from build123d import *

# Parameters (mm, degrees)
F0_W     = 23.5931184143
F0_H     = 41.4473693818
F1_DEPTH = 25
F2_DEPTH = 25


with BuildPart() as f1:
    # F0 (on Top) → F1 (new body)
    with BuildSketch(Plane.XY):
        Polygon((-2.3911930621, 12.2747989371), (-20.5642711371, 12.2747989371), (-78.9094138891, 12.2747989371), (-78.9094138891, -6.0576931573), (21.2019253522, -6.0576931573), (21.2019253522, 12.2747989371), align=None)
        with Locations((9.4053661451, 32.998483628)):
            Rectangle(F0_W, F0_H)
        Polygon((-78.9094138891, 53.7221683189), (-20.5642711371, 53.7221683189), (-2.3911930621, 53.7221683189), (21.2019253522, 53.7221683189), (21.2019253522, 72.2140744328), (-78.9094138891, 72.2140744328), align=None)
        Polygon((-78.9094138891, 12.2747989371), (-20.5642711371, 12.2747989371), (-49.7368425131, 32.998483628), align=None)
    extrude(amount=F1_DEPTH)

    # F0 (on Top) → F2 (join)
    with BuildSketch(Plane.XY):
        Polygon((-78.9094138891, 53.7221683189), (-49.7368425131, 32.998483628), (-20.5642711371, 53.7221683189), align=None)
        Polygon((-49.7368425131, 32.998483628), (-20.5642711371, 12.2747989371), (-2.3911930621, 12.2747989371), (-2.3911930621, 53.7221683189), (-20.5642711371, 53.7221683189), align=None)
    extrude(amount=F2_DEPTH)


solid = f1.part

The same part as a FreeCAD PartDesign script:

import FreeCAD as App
import Part
import Sketcher
from FreeCAD import Vector

doc = App.newDocument("Part")
params = doc.addObject("Spreadsheet::Sheet", "Params")
for row, (alias, value) in enumerate([
    ("pad1_length", "25 mm"),
    ("pad2_length", "25 mm"),
], start=1):
    params.set(f"A{row}", alias)
    params.set(f"B{row}", "=" + value)
    params.setAlias(f"B{row}", alias)

body = doc.addObject("PartDesign::Body", "Body")

sketch1 = body.newObject("Sketcher::SketchObject", "Sketch")
sketch1.AttachmentSupport = (doc.getObject("XY_Plane"), [""])
sketch1.MapMode = "FlatFace"
sketch1.addGeometry([
    Part.LineSegment(Vector(-79, 12, 0), Vector(-79, -6, 0)),
    Part.LineSegment(Vector(-79, -6, 0), Vector(21, -6, 0)),
    Part.LineSegment(Vector(21, -6, 0), Vector(21, 72, 0)),
    Part.LineSegment(Vector(21, 72, 0), Vector(-79, 72, 0)),
    Part.LineSegment(Vector(-79, 72, 0), Vector(-79, 54, 0)),
    Part.LineSegment(Vector(-79, 54, 0), Vector(-2, 54, 0)),
    Part.LineSegment(Vector(-2, 54, 0), Vector(-2, 12, 0)),
    Part.LineSegment(Vector(-2, 12, 0), Vector(-21, 12, 0)),
    Part.LineSegment(Vector(-21, 12, 0), Vector(-50, 33, 0)),
    Part.LineSegment(Vector(-50, 33, 0), Vector(-79, 12, 0)),
], False)
sketch1.addConstraint([
    Sketcher.Constraint("Coincident", 0, 2, 1, 1),
    Sketcher.Constraint("Coincident", 1, 2, 2, 1),
    Sketcher.Constraint("Coincident", 2, 2, 3, 1),
    Sketcher.Constraint("Coincident", 3, 2, 4, 1),
    Sketcher.Constraint("Coincident", 4, 2, 5, 1),
    Sketcher.Constraint("Coincident", 5, 2, 6, 1),
    Sketcher.Constraint("Coincident", 6, 2, 7, 1),
    Sketcher.Constraint("Coincident", 7, 2, 8, 1),
    Sketcher.Constraint("Coincident", 8, 2, 9, 1),
    Sketcher.Constraint("Coincident", 9, 2, 0, 1),
    Sketcher.Constraint("Vertical", 0),
    Sketcher.Constraint("Horizontal", 1),
    Sketcher.Constraint("Vertical", 2),
    Sketcher.Constraint("Horizontal", 3),
    Sketcher.Constraint("Vertical", 4),
    Sketcher.Constraint("Horizontal", 5),
    Sketcher.Constraint("Vertical", 6),
    Sketcher.Constraint("Horizontal", 7),
    Sketcher.Constraint("Horizontal", 7, 2, 9, 2),
    Sketcher.Constraint("Vertical", 0, 2, 3, 2),
    Sketcher.Constraint("Equal", 8, 9),
    Sketcher.Constraint("DistanceX", 1, 1, 1, 2, 100.111339),
    Sketcher.Constraint("DistanceX", 5, 1, 5, 2, 76.518221),
    Sketcher.Constraint("DistanceX", 7, 2, 7, 1, 18.173078),
    Sketcher.Constraint("DistanceY", 6, 2, 6, 1, 41.447369),
    Sketcher.Constraint("DistanceY", -1, 1, 6, 2, 12.274799),
    Sketcher.Constraint("DistanceY", 0, 2, 0, 1, 18.332492),
    Sketcher.Constraint("DistanceY", 2, 1, 2, 2, 78.271768),
    Sketcher.Constraint("DistanceX", 7, 2, -1, 1, 20.564271),
    Sketcher.Constraint("DistanceY", 8, 2, 3, 2, 39.215591),
])
pad1 = body.newObject("PartDesign::Pad", "Pad")
pad1.Profile = sketch1
pad1.setExpression("Length", "Params.pad1_length")

sketch2 = body.newObject("Sketcher::SketchObject", "Sketch001")
sketch2.AttachmentSupport = (doc.getObject("XY_Plane"), [""])
sketch2.MapMode = "FlatFace"
sketch2.addGeometry([
    Part.LineSegment(Vector(-79, 54, 0), Vector(-21, 12, 0)),
    Part.LineSegment(Vector(-21, 12, 0), Vector(-2, 12, 0)),
    Part.LineSegment(Vector(-2, 12, 0), Vector(-2, 54, 0)),
    Part.LineSegment(Vector(-2, 54, 0), Vector(-79, 54, 0)),
], False)
sketch2.addConstraint([
    Sketcher.Constraint("Coincident", 0, 2, 1, 1),
    Sketcher.Constraint("Coincident", 1, 2, 2, 1),
    Sketcher.Constraint("Coincident", 2, 2, 3, 1),
    Sketcher.Constraint("Coincident", 3, 2, 0, 1),
    Sketcher.Constraint("Horizontal", 1),
    Sketcher.Constraint("Vertical", 2),
    Sketcher.Constraint("Horizontal", 3),
    Sketcher.Constraint("DistanceX", 1, 1, 1, 2, 18.173078),
    Sketcher.Constraint("DistanceX", 3, 2, 3, 1, 76.518221),
    Sketcher.Constraint("DistanceY", 2, 1, 2, 2, 41.447369),
    Sketcher.Constraint("DistanceY", -1, 1, 0, 2, 12.274799),
    Sketcher.Constraint("DistanceX", 0, 2, -1, 1, 20.564271),
])
pad2 = body.newObject("PartDesign::Pad", "Pad001")
pad2.Profile = sketch2
pad2.setExpression("Length", "Params.pad2_length")

doc.recompute()
